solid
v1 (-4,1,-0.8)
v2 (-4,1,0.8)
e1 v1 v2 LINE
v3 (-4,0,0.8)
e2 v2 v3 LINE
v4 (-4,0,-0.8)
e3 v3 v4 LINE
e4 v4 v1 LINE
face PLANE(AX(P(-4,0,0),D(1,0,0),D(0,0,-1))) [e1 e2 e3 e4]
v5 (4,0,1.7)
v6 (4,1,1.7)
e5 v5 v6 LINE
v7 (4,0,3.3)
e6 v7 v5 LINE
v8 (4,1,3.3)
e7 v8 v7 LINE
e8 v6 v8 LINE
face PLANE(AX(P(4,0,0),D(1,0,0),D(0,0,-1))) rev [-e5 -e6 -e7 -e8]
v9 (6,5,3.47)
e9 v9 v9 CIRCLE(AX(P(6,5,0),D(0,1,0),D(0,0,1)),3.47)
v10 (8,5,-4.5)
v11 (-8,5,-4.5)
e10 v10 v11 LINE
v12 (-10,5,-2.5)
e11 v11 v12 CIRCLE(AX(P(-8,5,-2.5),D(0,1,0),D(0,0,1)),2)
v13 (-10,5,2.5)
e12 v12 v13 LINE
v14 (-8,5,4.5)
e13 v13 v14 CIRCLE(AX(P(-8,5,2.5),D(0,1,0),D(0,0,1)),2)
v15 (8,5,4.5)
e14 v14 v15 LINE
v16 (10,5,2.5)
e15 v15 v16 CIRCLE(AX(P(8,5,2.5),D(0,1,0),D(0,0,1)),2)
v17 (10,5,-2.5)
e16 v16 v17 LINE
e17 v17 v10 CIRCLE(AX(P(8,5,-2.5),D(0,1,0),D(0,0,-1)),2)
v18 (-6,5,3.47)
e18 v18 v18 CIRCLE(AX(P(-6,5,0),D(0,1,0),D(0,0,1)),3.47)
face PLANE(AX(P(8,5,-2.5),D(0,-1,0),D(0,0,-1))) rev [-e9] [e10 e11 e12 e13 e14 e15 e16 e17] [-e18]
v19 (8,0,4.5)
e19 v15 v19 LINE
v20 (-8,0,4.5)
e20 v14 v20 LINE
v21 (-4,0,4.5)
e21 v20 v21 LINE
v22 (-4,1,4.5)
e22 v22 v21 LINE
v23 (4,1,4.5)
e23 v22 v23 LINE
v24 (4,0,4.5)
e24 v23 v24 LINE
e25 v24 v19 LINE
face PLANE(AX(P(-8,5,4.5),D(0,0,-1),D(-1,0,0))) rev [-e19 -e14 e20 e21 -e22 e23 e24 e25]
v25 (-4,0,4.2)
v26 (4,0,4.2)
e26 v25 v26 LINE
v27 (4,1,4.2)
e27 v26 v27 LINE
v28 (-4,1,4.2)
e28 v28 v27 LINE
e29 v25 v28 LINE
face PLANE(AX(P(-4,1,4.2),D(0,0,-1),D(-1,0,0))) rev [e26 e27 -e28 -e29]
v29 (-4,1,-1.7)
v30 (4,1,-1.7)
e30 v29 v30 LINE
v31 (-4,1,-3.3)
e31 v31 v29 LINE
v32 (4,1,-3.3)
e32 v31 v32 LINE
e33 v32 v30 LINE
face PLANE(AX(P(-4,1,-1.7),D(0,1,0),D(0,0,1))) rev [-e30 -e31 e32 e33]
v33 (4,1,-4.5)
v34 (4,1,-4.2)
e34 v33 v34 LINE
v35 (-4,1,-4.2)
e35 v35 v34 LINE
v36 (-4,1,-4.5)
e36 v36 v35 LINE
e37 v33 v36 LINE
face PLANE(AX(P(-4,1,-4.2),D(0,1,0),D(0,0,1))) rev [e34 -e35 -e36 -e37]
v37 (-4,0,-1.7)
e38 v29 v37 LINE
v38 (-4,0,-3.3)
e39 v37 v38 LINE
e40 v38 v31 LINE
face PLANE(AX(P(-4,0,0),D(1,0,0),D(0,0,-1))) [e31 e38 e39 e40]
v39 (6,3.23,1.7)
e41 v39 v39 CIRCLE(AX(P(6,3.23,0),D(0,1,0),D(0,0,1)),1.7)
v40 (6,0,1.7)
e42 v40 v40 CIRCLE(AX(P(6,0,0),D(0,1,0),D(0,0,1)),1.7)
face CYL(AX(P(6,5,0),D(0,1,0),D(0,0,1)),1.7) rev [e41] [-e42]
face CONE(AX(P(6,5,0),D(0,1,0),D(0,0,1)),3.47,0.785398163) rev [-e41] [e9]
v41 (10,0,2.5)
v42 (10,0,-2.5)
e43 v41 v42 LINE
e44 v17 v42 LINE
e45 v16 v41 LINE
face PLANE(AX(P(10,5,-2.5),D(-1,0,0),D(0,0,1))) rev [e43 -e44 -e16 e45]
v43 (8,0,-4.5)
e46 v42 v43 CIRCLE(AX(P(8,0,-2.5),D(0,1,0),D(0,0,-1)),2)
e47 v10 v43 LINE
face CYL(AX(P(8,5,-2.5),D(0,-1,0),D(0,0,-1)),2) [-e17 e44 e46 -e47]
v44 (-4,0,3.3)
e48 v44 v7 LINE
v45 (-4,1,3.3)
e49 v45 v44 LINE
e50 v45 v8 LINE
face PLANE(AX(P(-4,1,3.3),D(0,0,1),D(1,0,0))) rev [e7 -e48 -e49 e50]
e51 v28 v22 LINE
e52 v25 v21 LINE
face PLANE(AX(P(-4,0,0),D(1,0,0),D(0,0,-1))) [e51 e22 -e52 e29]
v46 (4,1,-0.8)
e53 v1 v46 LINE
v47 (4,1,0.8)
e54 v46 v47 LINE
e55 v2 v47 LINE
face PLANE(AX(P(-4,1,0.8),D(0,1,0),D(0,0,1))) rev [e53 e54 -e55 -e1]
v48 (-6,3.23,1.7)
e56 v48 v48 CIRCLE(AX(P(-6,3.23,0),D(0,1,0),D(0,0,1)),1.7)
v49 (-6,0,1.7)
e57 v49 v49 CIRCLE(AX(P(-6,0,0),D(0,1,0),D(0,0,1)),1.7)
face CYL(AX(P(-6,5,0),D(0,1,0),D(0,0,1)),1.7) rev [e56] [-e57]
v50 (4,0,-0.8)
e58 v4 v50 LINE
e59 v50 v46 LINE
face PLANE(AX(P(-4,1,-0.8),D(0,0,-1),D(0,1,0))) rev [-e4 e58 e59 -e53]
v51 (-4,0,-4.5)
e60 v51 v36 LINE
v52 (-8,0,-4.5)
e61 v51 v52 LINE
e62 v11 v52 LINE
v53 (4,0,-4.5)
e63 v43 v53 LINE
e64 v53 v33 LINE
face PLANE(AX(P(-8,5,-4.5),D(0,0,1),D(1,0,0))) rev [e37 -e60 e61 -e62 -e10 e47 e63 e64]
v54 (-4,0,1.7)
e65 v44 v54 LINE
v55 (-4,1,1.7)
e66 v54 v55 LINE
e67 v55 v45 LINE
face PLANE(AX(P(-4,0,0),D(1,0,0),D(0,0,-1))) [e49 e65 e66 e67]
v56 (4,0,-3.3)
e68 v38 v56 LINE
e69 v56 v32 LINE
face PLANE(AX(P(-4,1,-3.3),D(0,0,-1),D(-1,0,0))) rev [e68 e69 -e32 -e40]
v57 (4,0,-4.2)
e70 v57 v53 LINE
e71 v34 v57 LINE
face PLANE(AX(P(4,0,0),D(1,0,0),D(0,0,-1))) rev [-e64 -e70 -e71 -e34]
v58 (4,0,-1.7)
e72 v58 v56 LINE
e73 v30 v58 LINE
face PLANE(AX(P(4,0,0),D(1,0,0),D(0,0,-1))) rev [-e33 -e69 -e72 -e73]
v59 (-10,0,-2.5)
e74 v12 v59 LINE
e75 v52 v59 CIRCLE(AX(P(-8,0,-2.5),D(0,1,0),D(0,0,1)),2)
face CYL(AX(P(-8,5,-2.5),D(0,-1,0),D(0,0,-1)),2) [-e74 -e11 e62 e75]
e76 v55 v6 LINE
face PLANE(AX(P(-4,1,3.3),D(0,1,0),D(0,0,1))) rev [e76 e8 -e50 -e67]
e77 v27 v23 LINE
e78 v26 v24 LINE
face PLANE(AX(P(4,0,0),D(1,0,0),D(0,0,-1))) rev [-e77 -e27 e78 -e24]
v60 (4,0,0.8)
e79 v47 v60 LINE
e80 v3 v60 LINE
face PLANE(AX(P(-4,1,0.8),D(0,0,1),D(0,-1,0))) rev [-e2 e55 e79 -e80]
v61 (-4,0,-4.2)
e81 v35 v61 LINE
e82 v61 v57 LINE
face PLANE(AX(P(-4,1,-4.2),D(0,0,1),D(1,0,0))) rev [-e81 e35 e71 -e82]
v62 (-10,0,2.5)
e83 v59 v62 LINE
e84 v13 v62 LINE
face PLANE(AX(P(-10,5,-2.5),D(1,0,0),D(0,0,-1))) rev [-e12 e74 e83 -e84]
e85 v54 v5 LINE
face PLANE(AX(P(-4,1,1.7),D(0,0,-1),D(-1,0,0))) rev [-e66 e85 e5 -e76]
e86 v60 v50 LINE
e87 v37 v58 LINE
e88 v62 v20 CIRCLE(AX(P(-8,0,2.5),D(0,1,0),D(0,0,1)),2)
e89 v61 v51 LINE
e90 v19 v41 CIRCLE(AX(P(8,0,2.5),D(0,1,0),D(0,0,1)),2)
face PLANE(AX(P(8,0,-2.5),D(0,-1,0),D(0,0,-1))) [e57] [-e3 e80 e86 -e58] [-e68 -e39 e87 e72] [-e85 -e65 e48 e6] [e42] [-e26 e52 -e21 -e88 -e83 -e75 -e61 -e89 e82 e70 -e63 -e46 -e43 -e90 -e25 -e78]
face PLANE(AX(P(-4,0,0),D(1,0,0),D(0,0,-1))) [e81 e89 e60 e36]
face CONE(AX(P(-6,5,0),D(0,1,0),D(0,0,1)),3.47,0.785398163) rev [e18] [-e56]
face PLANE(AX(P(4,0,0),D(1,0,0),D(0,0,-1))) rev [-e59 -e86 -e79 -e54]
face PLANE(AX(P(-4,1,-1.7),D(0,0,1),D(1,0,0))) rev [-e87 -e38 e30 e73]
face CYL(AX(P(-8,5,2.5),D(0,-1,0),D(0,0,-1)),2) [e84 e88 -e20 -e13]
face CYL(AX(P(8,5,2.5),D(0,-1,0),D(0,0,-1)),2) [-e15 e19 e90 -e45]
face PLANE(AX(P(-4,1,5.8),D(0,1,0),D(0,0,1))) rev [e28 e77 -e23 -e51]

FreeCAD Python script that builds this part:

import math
import FreeCAD as App
import Part
import Sketcher

V = App.Vector
Q = App.Units.Quantity

doc = App.newDocument("Part")
params = doc.addObject("Spreadsheet::Sheet", "Params")
for row, (alias, value) in enumerate([
    ("sketch1_radius", "2 mm"),
    ("sketch1_width", "16 mm"),
    ("sketch1_height", "5 mm"),
    ("pad1_length", "5 mm"),
    ("sketch2_diameter", "3.4 mm"),
    ("hole_diameter", "3.4 mm"),
    ("hole_csink_diameter", "6.94 mm"),
    ("sketch3_width", "1 mm"),
    ("sketch3_height", "1.6 mm"),
    ("pocket1_length", "8 mm"),
], start=1):
    params.set(f"A{row}", alias)
    params.set(f"B{row}", "=" + value)
    params.setAlias(f"B{row}", alias)

body = doc.addObject("PartDesign::Body", "Body")

sketch1 = body.newObject("Sketcher::SketchObject", "Sketch")
sketch1.AttachmentSupport = (doc.getObject("XZ_Plane"), [""])
sketch1.MapMode = "FlatFace"
sketch1.addGeometry(Part.LineSegment(V(8, -4.5, 0), V(-8, -4.5, 0)), False)
sketch1.addGeometry(Part.ArcOfCircle(Part.Circle(V(-8, -2.5, 0), V(0, 0, 1), 2), math.radians(-180), math.radians(-90)), False)
sketch1.addGeometry(Part.LineSegment(V(-10, -2.5, 0), V(-10, 2.5, 0)), False)
sketch1.addGeometry(Part.ArcOfCircle(Part.Circle(V(-8, 2.5, 0), V(0, 0, 1), 2), math.radians(90), math.radians(180)), False)
sketch1.addGeometry(Part.LineSegment(V(-8, 4.5, 0), V(8, 4.5, 0)), False)
sketch1.addGeometry(Part.ArcOfCircle(Part.Circle(V(8, 2.5, 0), V(0, 0, 1), 2), math.radians(0), math.radians(90)), False)
sketch1.addGeometry(Part.LineSegment(V(10, 2.5, 0), V(10, -2.5, 0)), False)
sketch1.addGeometry(Part.ArcOfCircle(Part.Circle(V(8, -2.5, 0), V(0, 0, 1), 2), math.radians(-90), math.radians(0)), False)
sketch1.addConstraint(Sketcher.Constraint("Tangent", 0, 2, 1, 2))
sketch1.addConstraint(Sketcher.Constraint("Tangent", 1, 1, 2, 1))
sketch1.addConstraint(Sketcher.Constraint("Tangent", 2, 2, 3, 2))
sketch1.addConstraint(Sketcher.Constraint("Tangent", 3, 1, 4, 1))
sketch1.addConstraint(Sketcher.Constraint("Tangent", 4, 2, 5, 2))
sketch1.addConstraint(Sketcher.Constraint("Tangent", 5, 1, 6, 1))
sketch1.addConstraint(Sketcher.Constraint("Tangent", 6, 2, 7, 2))
sketch1.addConstraint(Sketcher.Constraint("Tangent", 7, 1, 0, 1))
sketch1.addConstraint(Sketcher.Constraint("Horizontal", 0))
sketch1.addConstraint(Sketcher.Constraint("Vertical", 2))
sketch1.addConstraint(Sketcher.Constraint("Horizontal", 4))
sketch1.addConstraint(Sketcher.Constraint("Vertical", 6))
sketch1.addConstraint(Sketcher.Constraint("Equal", 1, 3))
sketch1.addConstraint(Sketcher.Constraint("Equal", 3, 5))
sketch1.addConstraint(Sketcher.Constraint("Equal", 5, 7))
sketch1.addConstraint(Sketcher.Constraint("Symmetric", 1, 3, 5, 3, -1, 1))
sketch1.addConstraint(Sketcher.Constraint("Radius", 1, Q("2 mm")))
sketch1.addConstraint(Sketcher.Constraint("DistanceX", 0, 2, 0, 1, Q("16 mm")))
sketch1.addConstraint(Sketcher.Constraint("DistanceY", 2, 1, 2, 2, Q("5 mm")))
sketch1.setExpression("Constraints[16]", "Params.sketch1_radius")
sketch1.setExpression("Constraints[17]", "Params.sketch1_width")
sketch1.setExpression("Constraints[18]", "Params.sketch1_height")
pad1 = body.newObject("PartDesign::Pad", "Pad")
pad1.Profile = sketch1
pad1.setExpression("Length", "Params.pad1_length")
pad1.Reversed = True

sketch2 = body.newObject("Sketcher::SketchObject", "Sketch001")
sketch2.AttachmentSupport = (doc.getObject("XZ_Plane"), [""])
sketch2.MapMode = "FlatFace"
sketch2.AttachmentOffset = App.Placement(V(0, 0, -5), App.Rotation())
sketch2.addGeometry(Part.Circle(V(-6, 0, 0), V(0, 0, 1), 1.7), False)
sketch2.addGeometry(Part.Circle(V(6, 0, 0), V(0, 0, 1), 1.7), False)
sketch2.addConstraint(Sketcher.Constraint("Equal", 0, 1))
sketch2.addConstraint(Sketcher.Constraint("Symmetric", 0, 3, 1, 3, -1, 1))
sketch2.addConstraint(Sketcher.Constraint("PointOnObject", 0, 3, -1))
sketch2.addConstraint(Sketcher.Constraint("Diameter", 0, Q("3.4 mm")))
sketch2.addConstraint(Sketcher.Constraint("DistanceX", 0, 3, -1, 1, Q("6 mm")))
sketch2.setExpression("Constraints[3]", "Params.sketch2_diameter")
doc.recompute()
hole = body.newObject("PartDesign::Hole", "Hole")
hole.Profile = sketch2
hole.ThreadType = "None"
hole.setExpression("Diameter", "Params.hole_diameter")
hole.DepthType = "ThroughAll"
hole.HoleCutType = "Countersink"
hole.setExpression("HoleCutDiameter", "Params.hole_csink_diameter")
hole.HoleCutCountersinkAngle = 90
hole.Reversed = True

sketch3 = body.newObject("Sketcher::SketchObject", "Sketch002")
sketch3.AttachmentSupport = (doc.getObject("YZ_Plane"), [""])
sketch3.MapMode = "FlatFace"
sketch3.addGeometry(Part.LineSegment(V(1, -1.7, 0), V(0, -1.7, 0)), False)
sketch3.addGeometry(Part.LineSegment(V(0, -1.7, 0), V(0, -3.3, 0)), False)
sketch3.addGeometry(Part.LineSegment(V(0, -3.3, 0), V(1, -3.3, 0)), False)
sketch3.addGeometry(Part.LineSegment(V(1, -3.3, 0), V(1, -1.7, 0)), False)
sketch3.addGeometry(Part.LineSegment(V(1, 5.8, 0), V(0, 5.8, 0)), False)
sketch3.addGeometry(Part.LineSegment(V(0, 5.8, 0), V(0, 4.2, 0)), False)
sketch3.addGeometry(Part.LineSegment(V(0, 4.2, 0), V(1, 4.2, 0)), False)
sketch3.addGeometry(Part.LineSegment(V(1, 4.2, 0), V(1, 5.8, 0)), False)
sketch3.addGeometry(Part.LineSegment(V(1, 3.3, 0), V(0, 3.3, 0)), False)
sketch3.addGeometry(Part.LineSegment(V(0, 3.3, 0), V(0, 1.7, 0)), False)
sketch3.addGeometry(Part.LineSegment(V(0, 1.7, 0), V(1, 1.7, 0)), False)
sketch3.addGeometry(Part.LineSegment(V(1, 1.7, 0), V(1, 3.3, 0)), False)
sketch3.addGeometry(Part.LineSegment(V(1, 0.8, 0), V(0, 0.8, 0)), False)
sketch3.addGeometry(Part.LineSegment(V(0, 0.8, 0), V(0, -0.8, 0)), False)
sketch3.addGeometry(Part.LineSegment(V(0, -0.8, 0), V(1, -0.8, 0)), False)
sketch3.addGeometry(Part.LineSegment(V(1, -0.8, 0), V(1, 0.8, 0)), False)
sketch3.addGeometry(Part.LineSegment(V(1, -4.2, 0), V(0, -4.2, 0)), False)
sketch3.addGeometry(Part.LineSegment(V(0, -4.2, 0), V(0, -5.8, 0)), False)
sketch3.addGeometry(Part.LineSegment(V(0, -5.8, 0), V(1, -5.8, 0)), False)
sketch3.addGeometry(Part.LineSegment(V(1, -5.8, 0), V(1, -4.2, 0)), False)
sketch3.addConstraint(Sketcher.Constraint("Coincident", 0, 2, 1, 1))
sketch3.addConstraint(Sketcher.Constraint("Coincident", 1, 2, 2, 1))
sketch3.addConstraint(Sketcher.Constraint("Coincident", 2, 2, 3, 1))
sketch3.addConstraint(Sketcher.Constraint("Coincident", 3, 2, 0, 1))
sketch3.addConstraint(Sketcher.Constraint("Coincident", 4, 2, 5, 1))
sketch3.addConstraint(Sketcher.Constraint("Coincident", 5, 2, 6, 1))
sketch3.addConstraint(Sketcher.Constraint("Coincident", 6, 2, 7, 1))
sketch3.addConstraint(Sketcher.Constraint("Coincident", 7, 2, 4, 1))
sketch3.addConstraint(Sketcher.Constraint("Coincident", 8, 2, 9, 1))
sketch3.addConstraint(Sketcher.Constraint("Coincident", 9, 2, 10, 1))
sketch3.addConstraint(Sketcher.Constraint("Coincident", 10, 2, 11, 1))
sketch3.addConstraint(Sketcher.Constraint("Coincident", 11, 2, 8, 1))
sketch3.addConstraint(Sketcher.Constraint("Coincident", 12, 2, 13, 1))
sketch3.addConstraint(Sketcher.Constraint("Coincident", 13, 2, 14, 1))
sketch3.addConstraint(Sketcher.Constraint("Coincident", 14, 2, 15, 1))
sketch3.addConstraint(Sketcher.Constraint("Coincident", 15, 2, 12, 1))
sketch3.addConstraint(Sketcher.Constraint("Coincident", 16, 2, 17, 1))
sketch3.addConstraint(Sketcher.Constraint("Coincident", 17, 2, 18, 1))
sketch3.addConstraint(Sketcher.Constraint("Coincident", 18, 2, 19, 1))
sketch3.addConstraint(Sketcher.Constraint("Coincident", 19, 2, 16, 1))
sketch3.addConstraint(Sketcher.Constraint("Horizontal", 0))
sketch3.addConstraint(Sketcher.Constraint("Vertical", 1))
sketch3.addConstraint(Sketcher.Constraint("Horizontal", 2))
sketch3.addConstraint(Sketcher.Constraint("Vertical", 3))
sketch3.addConstraint(Sketcher.Constraint("Horizontal", 4))
sketch3.addConstraint(Sketcher.Constraint("Vertical", 5))
sketch3.addConstraint(Sketcher.Constraint("Horizontal", 6))
sketch3.addConstraint(Sketcher.Constraint("Vertical", 7))
sketch3.addConstraint(Sketcher.Constraint("Horizontal", 8))
sketch3.addConstraint(Sketcher.Constraint("Vertical", 9))
sketch3.addConstraint(Sketcher.Constraint("Horizontal", 10))
sketch3.addConstraint(Sketcher.Constraint("Vertical", 11))
sketch3.addConstraint(Sketcher.Constraint("Horizontal", 12))
sketch3.addConstraint(Sketcher.Constraint("Vertical", 13))
sketch3.addConstraint(Sketcher.Constraint("Horizontal", 14))
sketch3.addConstraint(Sketcher.Constraint("Vertical", 15))
sketch3.addConstraint(Sketcher.Constraint("Horizontal", 16))
sketch3.addConstraint(Sketcher.Constraint("Vertical", 17))
sketch3.addConstraint(Sketcher.Constraint("Horizontal", 18))
sketch3.addConstraint(Sketcher.Constraint("Vertical", 19))
sketch3.addConstraint(Sketcher.Constraint("Symmetric", 1, 2, 8, 2, -1, 1))
sketch3.addConstraint(Sketcher.Constraint("Symmetric", 12, 2, 13, 2, -1, 1))
sketch3.addConstraint(Sketcher.Constraint("Symmetric", 5, 2, 16, 2, -1, 1))
sketch3.addConstraint(Sketcher.Constraint("Symmetric", 0, 2, 9, 2, -1))
sketch3.addConstraint(Sketcher.Constraint("Symmetric", 4, 2, 17, 2, -1))
sketch3.addConstraint(Sketcher.Constraint("Vertical", 3, 2, 6, 2))
sketch3.addConstraint(Sketcher.Constraint("Vertical", 7, 2, 10, 2))
sketch3.addConstraint(Sketcher.Constraint("Vertical", 11, 2, 14, 2))
sketch3.addConstraint(Sketcher.Constraint("Vertical", 15, 2, 18, 2))
sketch3.addConstraint(Sketcher.Constraint("Equal", 3, 5))
sketch3.addConstraint(Sketcher.Constraint("Equal", 11, 13))
sketch3.addConstraint(Sketcher.Constraint("DistanceX", 0, 2, 0, 1, Q("1 mm")))
sketch3.addConstraint(Sketcher.Constraint("DistanceY", 1, 2, 1, 1, Q("1.6 mm")))
sketch3.addConstraint(Sketcher.Constraint("DistanceY", 0, 2, 8, 2, Q("5 mm")))
sketch3.addConstraint(Sketcher.Constraint("DistanceY", -1, 1, 4, 2, Q("5.8 mm")))
sketch3.setExpression("Constraints[51]", "Params.sketch3_width")
sketch3.setExpression("Constraints[52]", "Params.sketch3_height")
pocket1 = body.newObject("PartDesign::Pocket", "Pocket")
pocket1.Profile = sketch3
pocket1.setExpression("Length", "Params.pocket1_length")
pocket1.Midplane = True

doc.recompute()
